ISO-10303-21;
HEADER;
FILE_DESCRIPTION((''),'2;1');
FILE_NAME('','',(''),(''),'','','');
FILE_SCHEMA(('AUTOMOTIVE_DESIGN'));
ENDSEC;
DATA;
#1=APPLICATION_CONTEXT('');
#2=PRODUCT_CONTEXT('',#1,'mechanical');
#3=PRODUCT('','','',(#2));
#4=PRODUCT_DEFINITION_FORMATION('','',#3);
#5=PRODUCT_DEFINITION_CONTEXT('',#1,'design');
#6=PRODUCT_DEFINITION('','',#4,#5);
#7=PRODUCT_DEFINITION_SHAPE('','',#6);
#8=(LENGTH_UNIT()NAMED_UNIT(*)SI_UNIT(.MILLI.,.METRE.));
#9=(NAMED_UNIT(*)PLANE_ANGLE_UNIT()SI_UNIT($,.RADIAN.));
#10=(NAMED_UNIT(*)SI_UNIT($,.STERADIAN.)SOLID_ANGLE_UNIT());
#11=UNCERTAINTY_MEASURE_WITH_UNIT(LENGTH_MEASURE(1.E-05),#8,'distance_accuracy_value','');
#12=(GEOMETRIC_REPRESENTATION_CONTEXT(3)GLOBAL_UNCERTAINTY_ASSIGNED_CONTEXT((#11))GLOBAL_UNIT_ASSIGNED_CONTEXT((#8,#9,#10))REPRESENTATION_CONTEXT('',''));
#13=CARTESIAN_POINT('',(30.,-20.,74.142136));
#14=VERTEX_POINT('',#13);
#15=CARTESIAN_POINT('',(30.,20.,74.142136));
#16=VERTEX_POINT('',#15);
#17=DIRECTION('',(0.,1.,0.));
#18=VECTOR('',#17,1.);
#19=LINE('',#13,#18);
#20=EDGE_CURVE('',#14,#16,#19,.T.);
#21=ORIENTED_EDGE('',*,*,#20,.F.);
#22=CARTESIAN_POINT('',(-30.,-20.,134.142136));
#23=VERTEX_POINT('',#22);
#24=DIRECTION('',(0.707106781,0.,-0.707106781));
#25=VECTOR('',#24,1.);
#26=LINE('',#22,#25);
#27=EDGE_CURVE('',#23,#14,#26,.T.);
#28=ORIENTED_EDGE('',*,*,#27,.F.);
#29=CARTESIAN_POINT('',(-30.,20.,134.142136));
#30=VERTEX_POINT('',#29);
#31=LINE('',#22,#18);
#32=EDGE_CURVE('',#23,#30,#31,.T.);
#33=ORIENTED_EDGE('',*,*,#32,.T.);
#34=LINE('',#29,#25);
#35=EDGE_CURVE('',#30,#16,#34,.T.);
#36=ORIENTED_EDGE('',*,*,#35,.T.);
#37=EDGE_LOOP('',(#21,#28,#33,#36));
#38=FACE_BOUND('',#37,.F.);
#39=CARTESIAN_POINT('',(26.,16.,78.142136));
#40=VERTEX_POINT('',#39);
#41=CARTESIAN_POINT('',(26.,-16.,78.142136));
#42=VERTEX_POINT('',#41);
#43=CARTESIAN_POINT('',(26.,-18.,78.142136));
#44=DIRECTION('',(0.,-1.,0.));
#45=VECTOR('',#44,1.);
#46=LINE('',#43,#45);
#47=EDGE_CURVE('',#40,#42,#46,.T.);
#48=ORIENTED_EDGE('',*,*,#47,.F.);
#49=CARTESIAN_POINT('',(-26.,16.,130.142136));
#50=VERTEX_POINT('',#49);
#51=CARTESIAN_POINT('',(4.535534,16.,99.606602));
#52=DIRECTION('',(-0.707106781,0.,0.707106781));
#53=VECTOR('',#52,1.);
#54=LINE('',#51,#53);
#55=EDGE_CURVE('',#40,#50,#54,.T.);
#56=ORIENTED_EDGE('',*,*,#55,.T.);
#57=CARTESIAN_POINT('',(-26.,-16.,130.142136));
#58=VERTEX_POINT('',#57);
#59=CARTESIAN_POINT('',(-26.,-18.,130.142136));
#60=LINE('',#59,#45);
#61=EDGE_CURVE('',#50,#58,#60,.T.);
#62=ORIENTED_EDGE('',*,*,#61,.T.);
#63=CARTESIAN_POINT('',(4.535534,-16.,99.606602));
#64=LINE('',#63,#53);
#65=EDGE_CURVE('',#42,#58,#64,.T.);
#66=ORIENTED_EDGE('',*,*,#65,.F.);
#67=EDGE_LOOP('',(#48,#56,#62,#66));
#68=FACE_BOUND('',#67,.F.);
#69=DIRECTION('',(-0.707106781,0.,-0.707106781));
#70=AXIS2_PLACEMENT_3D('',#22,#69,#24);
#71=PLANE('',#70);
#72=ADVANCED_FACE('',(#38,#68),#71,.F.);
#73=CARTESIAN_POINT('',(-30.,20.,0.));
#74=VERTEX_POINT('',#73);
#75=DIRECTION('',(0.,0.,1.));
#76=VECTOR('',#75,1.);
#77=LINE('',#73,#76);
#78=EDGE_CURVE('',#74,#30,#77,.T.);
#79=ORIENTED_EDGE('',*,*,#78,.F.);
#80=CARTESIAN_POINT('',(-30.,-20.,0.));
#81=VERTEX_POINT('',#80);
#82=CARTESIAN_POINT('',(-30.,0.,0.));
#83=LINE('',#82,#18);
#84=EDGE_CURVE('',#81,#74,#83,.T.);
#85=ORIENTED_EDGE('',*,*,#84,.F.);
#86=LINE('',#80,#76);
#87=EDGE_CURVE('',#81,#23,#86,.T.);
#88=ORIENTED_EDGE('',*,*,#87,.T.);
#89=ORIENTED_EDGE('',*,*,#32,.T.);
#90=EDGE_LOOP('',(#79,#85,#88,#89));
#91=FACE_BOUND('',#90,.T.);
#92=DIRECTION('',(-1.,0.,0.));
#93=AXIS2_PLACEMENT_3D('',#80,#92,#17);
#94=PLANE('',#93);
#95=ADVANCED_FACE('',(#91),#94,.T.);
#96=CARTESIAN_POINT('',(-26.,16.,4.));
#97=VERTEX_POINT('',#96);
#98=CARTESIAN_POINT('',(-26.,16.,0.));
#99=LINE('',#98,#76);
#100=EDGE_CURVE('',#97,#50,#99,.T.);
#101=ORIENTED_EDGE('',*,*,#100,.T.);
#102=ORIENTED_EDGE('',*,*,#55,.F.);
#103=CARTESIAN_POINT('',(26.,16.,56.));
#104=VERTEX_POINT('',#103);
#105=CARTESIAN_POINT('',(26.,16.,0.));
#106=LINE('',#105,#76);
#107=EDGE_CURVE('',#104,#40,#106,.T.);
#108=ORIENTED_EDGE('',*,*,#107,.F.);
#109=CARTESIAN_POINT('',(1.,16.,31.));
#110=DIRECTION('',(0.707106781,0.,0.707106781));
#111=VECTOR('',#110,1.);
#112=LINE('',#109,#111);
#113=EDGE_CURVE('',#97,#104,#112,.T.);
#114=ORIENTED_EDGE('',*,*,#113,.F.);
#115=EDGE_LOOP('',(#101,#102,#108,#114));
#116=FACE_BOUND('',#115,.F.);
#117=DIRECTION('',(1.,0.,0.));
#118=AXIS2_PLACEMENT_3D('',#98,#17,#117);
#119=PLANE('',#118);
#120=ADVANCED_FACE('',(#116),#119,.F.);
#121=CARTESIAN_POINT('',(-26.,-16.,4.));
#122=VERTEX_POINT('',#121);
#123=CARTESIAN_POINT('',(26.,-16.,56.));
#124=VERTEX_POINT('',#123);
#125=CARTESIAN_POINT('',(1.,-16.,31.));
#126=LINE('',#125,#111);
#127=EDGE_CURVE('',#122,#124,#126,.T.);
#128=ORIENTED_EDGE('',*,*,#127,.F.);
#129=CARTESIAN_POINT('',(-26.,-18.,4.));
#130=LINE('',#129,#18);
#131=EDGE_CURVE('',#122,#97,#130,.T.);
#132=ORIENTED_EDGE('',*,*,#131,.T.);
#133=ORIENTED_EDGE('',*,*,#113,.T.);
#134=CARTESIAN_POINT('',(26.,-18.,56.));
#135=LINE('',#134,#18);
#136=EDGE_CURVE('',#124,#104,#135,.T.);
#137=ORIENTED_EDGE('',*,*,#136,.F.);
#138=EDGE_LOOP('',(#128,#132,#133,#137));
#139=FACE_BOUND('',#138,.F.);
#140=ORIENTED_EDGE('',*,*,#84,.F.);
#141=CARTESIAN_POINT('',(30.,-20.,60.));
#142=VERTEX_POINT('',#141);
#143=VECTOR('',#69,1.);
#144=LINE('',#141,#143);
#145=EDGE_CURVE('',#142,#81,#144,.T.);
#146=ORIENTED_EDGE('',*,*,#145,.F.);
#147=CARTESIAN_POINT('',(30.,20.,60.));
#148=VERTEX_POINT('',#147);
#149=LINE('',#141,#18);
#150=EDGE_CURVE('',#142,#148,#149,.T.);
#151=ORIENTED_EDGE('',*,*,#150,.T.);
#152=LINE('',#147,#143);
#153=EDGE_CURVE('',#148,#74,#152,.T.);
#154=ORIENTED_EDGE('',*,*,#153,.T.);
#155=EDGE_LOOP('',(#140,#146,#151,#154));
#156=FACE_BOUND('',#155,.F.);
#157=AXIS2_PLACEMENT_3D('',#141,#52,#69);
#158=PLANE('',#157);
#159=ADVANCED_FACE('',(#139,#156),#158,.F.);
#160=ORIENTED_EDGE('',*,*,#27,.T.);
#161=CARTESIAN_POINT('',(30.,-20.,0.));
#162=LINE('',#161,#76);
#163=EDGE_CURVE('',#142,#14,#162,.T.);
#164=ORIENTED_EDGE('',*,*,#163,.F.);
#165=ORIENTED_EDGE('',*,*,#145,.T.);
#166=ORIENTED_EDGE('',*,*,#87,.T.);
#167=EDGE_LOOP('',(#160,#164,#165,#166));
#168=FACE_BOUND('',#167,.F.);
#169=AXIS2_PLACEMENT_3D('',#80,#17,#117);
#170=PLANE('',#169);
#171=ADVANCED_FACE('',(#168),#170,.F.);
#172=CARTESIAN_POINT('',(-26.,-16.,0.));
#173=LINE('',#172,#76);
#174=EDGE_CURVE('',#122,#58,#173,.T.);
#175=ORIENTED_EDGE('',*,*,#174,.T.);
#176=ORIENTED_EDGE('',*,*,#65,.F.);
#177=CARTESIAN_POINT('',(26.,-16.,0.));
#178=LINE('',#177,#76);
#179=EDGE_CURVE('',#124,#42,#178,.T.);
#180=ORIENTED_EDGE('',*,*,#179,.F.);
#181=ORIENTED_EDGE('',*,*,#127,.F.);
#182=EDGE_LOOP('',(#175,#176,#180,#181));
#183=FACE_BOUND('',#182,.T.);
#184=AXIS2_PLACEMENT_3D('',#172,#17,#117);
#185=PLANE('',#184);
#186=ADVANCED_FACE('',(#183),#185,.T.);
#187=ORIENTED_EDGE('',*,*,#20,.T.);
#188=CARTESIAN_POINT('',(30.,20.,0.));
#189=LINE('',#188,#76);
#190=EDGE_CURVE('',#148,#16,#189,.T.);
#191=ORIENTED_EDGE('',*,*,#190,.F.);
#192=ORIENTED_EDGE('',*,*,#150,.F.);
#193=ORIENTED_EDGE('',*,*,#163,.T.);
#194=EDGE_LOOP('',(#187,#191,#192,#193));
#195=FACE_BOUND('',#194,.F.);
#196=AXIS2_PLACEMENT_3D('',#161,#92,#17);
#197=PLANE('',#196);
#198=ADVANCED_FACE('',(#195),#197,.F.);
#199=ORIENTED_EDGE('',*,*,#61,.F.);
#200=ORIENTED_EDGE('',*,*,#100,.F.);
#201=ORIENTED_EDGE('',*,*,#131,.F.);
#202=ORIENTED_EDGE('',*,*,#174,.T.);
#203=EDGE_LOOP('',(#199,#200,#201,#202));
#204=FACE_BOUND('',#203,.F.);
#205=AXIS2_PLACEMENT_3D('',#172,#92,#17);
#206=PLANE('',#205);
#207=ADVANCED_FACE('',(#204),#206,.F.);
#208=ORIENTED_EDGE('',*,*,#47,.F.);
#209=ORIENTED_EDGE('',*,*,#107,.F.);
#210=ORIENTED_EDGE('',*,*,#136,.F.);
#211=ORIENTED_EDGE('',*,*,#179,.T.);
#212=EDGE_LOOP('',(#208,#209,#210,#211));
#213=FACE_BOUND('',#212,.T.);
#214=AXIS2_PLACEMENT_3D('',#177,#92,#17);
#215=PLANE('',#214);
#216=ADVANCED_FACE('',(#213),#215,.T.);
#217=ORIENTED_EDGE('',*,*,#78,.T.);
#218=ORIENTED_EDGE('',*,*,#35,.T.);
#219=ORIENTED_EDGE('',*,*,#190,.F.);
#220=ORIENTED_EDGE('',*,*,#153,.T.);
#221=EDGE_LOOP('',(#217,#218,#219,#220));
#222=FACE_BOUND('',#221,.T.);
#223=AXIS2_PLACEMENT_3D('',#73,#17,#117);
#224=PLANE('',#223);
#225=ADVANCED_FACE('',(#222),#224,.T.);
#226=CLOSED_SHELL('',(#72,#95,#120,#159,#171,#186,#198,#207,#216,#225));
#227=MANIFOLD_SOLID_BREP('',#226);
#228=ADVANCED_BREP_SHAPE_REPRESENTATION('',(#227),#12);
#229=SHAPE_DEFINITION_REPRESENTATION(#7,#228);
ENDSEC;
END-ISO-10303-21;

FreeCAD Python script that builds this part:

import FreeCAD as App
import Part
import Sketcher

doc = App.newDocument("Part")
body = doc.addObject("PartDesign::Body", "Body")

# Sketch on XY plane
sketch1 = body.newObject("Sketcher::SketchObject", "Sketch")
sketch1.AttachmentSupport = (doc.getObject("XY_Plane"), [""])
sketch1.MapMode = "FlatFace"
sketch1.addGeometry([
    Part.LineSegment(App.Vector(-30, 20, 0), App.Vector(-30, -20, 0)),  # 0
    Part.LineSegment(App.Vector(-30, -20, 0), App.Vector(30, -20, 0)),  # 1
    Part.LineSegment(App.Vector(30, -20, 0), App.Vector(30, 20, 0)),  # 2
    Part.LineSegment(App.Vector(30, 20, 0), App.Vector(-30, 20, 0)),  # 3
    Part.LineSegment(App.Vector(26, -16, 0), App.Vector(-26, -16, 0)),  # 4
    Part.LineSegment(App.Vector(-26, -16, 0), App.Vector(-26, 16, 0)),  # 5
    Part.LineSegment(App.Vector(-26, 16, 0), App.Vector(26, 16, 0)),  # 6
    Part.LineSegment(App.Vector(26, 16, 0), App.Vector(26, -16, 0)),  # 7
], False)
sketch1.addConstraint([
    Sketcher.Constraint("Coincident", 0, 2, 1, 1),
    Sketcher.Constraint("Coincident", 1, 2, 2, 1),
    Sketcher.Constraint("Coincident", 2, 2, 3, 1),
    Sketcher.Constraint("Coincident", 3, 2, 0, 1),
    Sketcher.Constraint("Coincident", 4, 2, 5, 1),
    Sketcher.Constraint("Coincident", 5, 2, 6, 1),
    Sketcher.Constraint("Coincident", 6, 2, 7, 1),
    Sketcher.Constraint("Coincident", 7, 2, 4, 1),
    Sketcher.Constraint("Vertical", 0),
    Sketcher.Constraint("Horizontal", 1),
    Sketcher.Constraint("Vertical", 2),
    Sketcher.Constraint("Horizontal", 3),
    Sketcher.Constraint("Horizontal", 4),
    Sketcher.Constraint("Vertical", 5),
    Sketcher.Constraint("Horizontal", 6),
    Sketcher.Constraint("Vertical", 7),
    Sketcher.Constraint("Symmetric", 0, 2, 2, 2, -1, 1),
    Sketcher.Constraint("Symmetric", 4, 2, 6, 2, -1, 1),
    Sketcher.Constraint("DistanceX", 1, 1, 1, 2, 60.0),
    Sketcher.Constraint("DistanceX", 4, 2, 4, 1, 52.0),
    Sketcher.Constraint("DistanceY", 0, 2, 0, 1, 40.0),
    Sketcher.Constraint("DistanceY", 5, 1, 5, 2, 32.0),
])
pad1 = body.newObject("PartDesign::Pad", "Pad")
pad1.Profile = sketch1
pad1.Length = 170

# Sketch on XZ plane
sketch2 = body.newObject("Sketcher::SketchObject", "Sketch001")
sketch2.AttachmentSupport = (doc.getObject("XZ_Plane"), [""])
sketch2.MapMode = "FlatFace"
sketch2.AttachmentOffset = App.Placement(App.Vector(0, 0, 20), App.Rotation())
sketch2.addGeometry([
    Part.LineSegment(App.Vector(-30, 134, 0), App.Vector(30, 74, 0)),  # 0
    Part.LineSegment(App.Vector(30, 74, 0), App.Vector(30, 170, 0)),  # 1
    Part.LineSegment(App.Vector(30, 170, 0), App.Vector(-30, 170, 0)),  # 2
    Part.LineSegment(App.Vector(-30, 170, 0), App.Vector(-30, 134, 0)),  # 3
    Part.LineSegment(App.Vector(30, 60, 0), App.Vector(-30, 0, 0)),  # 4
    Part.LineSegment(App.Vector(-30, 0, 0), App.Vector(30, 0, 0)),  # 5
    Part.LineSegment(App.Vector(30, 0, 0), App.Vector(30, 60, 0)),  # 6
], False)
sketch2.addConstraint([
    Sketcher.Constraint("Coincident", 0, 2, 1, 1),
    Sketcher.Constraint("Coincident", 1, 2, 2, 1),
    Sketcher.Constraint("Coincident", 2, 2, 3, 1),
    Sketcher.Constraint("Coincident", 3, 2, 0, 1),
    Sketcher.Constraint("Coincident", 4, 2, 5, 1),
    Sketcher.Constraint("Coincident", 5, 2, 6, 1),
    Sketcher.Constraint("Coincident", 6, 2, 4, 1),
    Sketcher.Constraint("Vertical", 1),
    Sketcher.Constraint("Horizontal", 2),
    Sketcher.Constraint("Vertical", 3),
    Sketcher.Constraint("Horizontal", 5),
    Sketcher.Constraint("Vertical", 6),
    Sketcher.Constraint("Symmetric", 4, 2, 5, 2, -1, 1),
    Sketcher.Constraint("Perpendicular", 0, 4),
    Sketcher.Constraint("Vertical", 3, 2, 4, 2),
    Sketcher.Constraint("Vertical", 1, 2, 5, 2),
    Sketcher.Constraint("Equal", 5, 6),
    Sketcher.Constraint("DistanceX", 2, 2, 2, 1, 60.0),
    Sketcher.Constraint("DistanceY", -1, 1, 1, 2, 170.0),
    Sketcher.Constraint("DistanceY", 1, 1, 1, 2, 95.857864),
])
pocket1 = body.newObject("PartDesign::Pocket", "Pocket")
pocket1.Profile = sketch2
pocket1.Length = 40

doc.recompute()
